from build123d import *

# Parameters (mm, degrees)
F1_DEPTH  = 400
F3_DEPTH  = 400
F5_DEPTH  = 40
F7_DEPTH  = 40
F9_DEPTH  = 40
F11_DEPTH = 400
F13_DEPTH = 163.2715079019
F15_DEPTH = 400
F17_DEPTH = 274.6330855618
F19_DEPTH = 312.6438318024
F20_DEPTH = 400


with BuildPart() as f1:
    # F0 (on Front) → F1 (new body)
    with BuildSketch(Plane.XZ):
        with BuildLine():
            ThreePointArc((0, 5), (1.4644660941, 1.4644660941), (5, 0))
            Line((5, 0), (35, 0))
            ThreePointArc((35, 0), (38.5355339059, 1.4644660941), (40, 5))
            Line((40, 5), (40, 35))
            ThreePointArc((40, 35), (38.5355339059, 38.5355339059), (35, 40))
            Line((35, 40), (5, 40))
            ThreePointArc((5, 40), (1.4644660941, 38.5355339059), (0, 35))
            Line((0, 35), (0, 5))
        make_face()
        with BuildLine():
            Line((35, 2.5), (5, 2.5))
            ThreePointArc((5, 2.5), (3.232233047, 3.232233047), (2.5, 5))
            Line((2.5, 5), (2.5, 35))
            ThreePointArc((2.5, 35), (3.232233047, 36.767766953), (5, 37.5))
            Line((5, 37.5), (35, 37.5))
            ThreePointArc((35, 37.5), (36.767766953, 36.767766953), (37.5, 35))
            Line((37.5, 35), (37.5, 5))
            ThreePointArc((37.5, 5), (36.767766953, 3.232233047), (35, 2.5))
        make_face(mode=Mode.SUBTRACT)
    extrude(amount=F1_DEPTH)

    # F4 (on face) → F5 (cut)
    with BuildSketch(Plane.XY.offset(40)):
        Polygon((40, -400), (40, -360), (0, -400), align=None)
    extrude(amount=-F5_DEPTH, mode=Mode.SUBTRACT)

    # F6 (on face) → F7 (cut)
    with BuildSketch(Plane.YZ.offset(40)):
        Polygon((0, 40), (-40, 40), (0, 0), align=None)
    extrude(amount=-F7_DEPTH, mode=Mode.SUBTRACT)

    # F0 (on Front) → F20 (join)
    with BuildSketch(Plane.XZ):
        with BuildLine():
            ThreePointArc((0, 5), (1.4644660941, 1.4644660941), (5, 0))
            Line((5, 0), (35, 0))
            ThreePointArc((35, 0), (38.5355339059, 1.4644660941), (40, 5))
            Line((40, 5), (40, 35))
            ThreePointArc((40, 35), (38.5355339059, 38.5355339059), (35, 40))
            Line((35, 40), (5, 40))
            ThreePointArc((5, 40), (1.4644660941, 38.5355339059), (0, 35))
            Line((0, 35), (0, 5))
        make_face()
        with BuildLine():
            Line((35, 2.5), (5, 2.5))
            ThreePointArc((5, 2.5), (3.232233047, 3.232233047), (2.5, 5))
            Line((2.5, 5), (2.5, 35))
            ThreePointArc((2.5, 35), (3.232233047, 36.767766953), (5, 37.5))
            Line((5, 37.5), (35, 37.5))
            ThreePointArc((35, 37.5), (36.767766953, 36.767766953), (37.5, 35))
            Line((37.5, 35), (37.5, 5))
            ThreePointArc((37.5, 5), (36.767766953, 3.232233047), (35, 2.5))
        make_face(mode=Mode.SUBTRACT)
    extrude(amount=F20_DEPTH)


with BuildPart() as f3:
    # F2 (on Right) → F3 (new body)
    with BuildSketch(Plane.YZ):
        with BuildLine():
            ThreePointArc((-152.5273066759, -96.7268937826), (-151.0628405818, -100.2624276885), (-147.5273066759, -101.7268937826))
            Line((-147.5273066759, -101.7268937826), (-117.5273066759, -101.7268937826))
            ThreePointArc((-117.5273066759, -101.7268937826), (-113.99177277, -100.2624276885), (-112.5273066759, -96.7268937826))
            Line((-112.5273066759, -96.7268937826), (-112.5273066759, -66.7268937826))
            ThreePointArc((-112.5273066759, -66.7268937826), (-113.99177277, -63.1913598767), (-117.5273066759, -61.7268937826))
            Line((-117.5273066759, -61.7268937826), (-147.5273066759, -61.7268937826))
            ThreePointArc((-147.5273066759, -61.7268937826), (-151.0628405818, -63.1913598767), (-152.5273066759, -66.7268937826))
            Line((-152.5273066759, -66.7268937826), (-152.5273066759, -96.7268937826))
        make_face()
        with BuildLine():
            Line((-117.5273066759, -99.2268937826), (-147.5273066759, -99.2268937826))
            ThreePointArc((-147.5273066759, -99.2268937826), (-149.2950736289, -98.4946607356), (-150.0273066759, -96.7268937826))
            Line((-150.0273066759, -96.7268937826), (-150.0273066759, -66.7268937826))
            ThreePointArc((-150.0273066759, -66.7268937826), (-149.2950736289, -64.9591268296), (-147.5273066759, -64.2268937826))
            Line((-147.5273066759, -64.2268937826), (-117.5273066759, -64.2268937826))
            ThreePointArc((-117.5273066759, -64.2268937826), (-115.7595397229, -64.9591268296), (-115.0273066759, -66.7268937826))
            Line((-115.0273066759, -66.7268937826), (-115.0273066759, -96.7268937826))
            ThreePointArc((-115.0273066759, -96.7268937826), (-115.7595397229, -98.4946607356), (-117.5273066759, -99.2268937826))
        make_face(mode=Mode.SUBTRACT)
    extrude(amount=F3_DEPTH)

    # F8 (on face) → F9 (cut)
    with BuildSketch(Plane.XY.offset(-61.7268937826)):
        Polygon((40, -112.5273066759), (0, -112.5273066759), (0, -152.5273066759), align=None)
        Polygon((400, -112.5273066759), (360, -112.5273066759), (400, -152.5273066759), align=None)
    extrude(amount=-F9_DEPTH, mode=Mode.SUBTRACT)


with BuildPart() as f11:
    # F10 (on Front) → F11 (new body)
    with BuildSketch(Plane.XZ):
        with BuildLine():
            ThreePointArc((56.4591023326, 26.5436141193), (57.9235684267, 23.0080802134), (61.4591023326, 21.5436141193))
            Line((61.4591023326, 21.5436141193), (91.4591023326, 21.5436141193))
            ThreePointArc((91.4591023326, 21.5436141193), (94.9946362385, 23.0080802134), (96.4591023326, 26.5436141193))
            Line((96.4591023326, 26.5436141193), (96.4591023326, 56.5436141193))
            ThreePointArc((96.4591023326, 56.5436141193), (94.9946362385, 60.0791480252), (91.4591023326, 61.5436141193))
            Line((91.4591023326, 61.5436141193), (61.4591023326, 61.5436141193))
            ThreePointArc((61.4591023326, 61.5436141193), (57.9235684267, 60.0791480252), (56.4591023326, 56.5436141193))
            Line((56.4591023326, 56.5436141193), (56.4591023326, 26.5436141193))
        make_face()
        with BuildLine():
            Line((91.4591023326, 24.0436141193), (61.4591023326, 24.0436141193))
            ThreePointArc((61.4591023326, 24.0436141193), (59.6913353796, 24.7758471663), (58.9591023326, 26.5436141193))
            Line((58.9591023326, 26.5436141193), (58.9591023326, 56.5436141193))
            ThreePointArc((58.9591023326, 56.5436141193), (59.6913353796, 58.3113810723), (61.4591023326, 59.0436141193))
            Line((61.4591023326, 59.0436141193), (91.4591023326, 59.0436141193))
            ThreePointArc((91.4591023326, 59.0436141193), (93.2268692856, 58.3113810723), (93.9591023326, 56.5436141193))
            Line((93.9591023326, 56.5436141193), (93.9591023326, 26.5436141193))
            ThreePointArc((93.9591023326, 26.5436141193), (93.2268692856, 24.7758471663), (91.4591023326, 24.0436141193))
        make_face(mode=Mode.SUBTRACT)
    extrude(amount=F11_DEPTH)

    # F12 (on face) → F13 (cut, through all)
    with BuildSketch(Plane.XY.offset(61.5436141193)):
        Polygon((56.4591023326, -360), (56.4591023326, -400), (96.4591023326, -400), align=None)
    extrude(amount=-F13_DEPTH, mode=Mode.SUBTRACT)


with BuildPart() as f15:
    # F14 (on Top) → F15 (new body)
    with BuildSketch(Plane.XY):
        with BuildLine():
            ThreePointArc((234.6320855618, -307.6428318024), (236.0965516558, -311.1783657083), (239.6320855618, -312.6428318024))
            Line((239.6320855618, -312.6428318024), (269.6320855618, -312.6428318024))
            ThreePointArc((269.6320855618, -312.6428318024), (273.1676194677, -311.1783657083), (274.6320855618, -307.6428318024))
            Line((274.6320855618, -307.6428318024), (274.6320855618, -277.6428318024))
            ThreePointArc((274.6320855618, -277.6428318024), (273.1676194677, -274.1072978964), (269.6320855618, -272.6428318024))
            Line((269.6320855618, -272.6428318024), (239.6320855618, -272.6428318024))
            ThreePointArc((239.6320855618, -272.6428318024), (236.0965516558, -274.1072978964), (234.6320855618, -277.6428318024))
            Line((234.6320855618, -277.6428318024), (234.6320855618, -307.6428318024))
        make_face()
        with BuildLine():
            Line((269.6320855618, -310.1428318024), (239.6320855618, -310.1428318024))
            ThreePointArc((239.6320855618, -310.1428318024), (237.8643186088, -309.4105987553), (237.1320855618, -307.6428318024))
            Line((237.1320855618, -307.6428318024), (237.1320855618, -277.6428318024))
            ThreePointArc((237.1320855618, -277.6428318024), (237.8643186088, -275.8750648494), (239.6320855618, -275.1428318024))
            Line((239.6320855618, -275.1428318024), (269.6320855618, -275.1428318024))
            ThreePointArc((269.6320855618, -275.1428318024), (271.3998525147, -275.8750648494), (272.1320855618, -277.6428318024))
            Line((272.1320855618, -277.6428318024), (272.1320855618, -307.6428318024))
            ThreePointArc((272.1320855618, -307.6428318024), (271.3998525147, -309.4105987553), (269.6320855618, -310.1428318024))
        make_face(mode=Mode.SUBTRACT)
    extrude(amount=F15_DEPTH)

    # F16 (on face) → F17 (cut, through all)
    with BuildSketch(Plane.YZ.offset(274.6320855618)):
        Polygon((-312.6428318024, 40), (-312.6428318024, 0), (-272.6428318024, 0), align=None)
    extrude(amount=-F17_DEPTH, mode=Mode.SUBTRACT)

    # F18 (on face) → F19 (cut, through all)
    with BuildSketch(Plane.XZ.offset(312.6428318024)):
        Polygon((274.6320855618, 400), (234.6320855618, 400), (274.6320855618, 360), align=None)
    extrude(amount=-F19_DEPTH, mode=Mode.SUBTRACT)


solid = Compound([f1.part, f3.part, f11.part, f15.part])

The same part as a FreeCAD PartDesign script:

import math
import FreeCAD as App
import Part
import Sketcher

V = App.Vector

doc = App.newDocument("Part")
params = doc.addObject("Spreadsheet::Sheet", "Params")
for row, (alias, value) in enumerate([
    ("sketch1_radius", "5 mm"),
    ("sketch1_radius2", "2.5 mm"),
    ("sketch1_width", "30 mm"),
    ("pad1_length", "400 mm"),
    ("sketch2_width", "40 mm"),
    ("pocket1_length", "40 mm"),
    ("sketch3_width", "40 mm"),
    ("pocket2_length", "40 mm"),
    ("sketch4_radius", "5 mm"),
    ("sketch4_radius2", "2.5 mm"),
    ("sketch4_width", "30 mm"),
    ("pad2_length", "400 mm"),
    ("sketch5_radius", "5 mm"),
    ("sketch5_radius2", "2.5 mm"),
    ("sketch5_width", "30 mm"),
    ("pad3_length", "400 mm"),
    ("sketch6_width", "40 mm"),
    ("pocket3_length", "40 mm"),
    ("sketch7_radius", "5 mm"),
    ("sketch7_radius2", "2.5 mm"),
    ("sketch7_width", "30 mm"),
    ("pad4_length", "400 mm"),
    ("sketch8_width", "40 mm"),
    ("sketch9_radius", "5 mm"),
    ("sketch9_radius2", "2.5 mm"),
    ("sketch9_width", "30 mm"),
    ("pad5_length", "400 mm"),
    ("sketch10_width", "40 mm"),
    ("sketch11_width", "40 mm"),
], start=1):
    params.set(f"A{row}", alias)
    params.set(f"B{row}", "=" + value)
    params.setAlias(f"B{row}", alias)

body = doc.addObject("PartDesign::Body", "Body")

sketch1 = body.newObject("Sketcher::SketchObject", "Sketch")
sketch1.AttachmentSupport = (doc.getObject("XZ_Plane"), [""])
sketch1.MapMode = "FlatFace"
sketch1.addGeometry(Part.ArcOfCircle(Part.Circle(V(5, 5, 0), V(0, 0, 1), 5), math.radians(180), math.radians(270)), False)
sketch1.addGeometry(Part.LineSegment(V(5, 0, 0), V(35, 0, 0)), False)
sketch1.addGeometry(Part.ArcOfCircle(Part.Circle(V(35, 5, 0), V(0, 0, 1), 5), math.radians(-90), math.radians(0)), False)
sketch1.addGeometry(Part.LineSegment(V(40, 5, 0), V(40, 35, 0)), False)
sketch1.addGeometry(Part.ArcOfCircle(Part.Circle(V(35, 35, 0), V(0, 0, 1), 5), math.radians(0), math.radians(90)), False)
sketch1.addGeometry(Part.LineSegment(V(35, 40, 0), V(5, 40, 0)), False)
sketch1.addGeometry(Part.ArcOfCircle(Part.Circle(V(5, 35, 0), V(0, 0, 1), 5), math.radians(90), math.radians(180)), False)
sketch1.addGeometry(Part.LineSegment(V(0, 35, 0), V(0, 5, 0)), False)
sketch1.addGeometry(Part.ArcOfCircle(Part.Circle(V(35, 5, 0), V(0, 0, 1), 2.5), math.radians(-90), math.radians(0)), False)
sketch1.addGeometry(Part.LineSegment(V(35, 2.5, 0), V(5, 2.5, 0)), False)
sketch1.addGeometry(Part.ArcOfCircle(Part.Circle(V(5, 5, 0), V(0, 0, 1), 2.5), math.radians(180), math.radians(270)), False)
sketch1.addGeometry(Part.LineSegment(V(2.5, 5, 0), V(2.5, 35, 0)), False)
sketch1.addGeometry(Part.ArcOfCircle(Part.Circle(V(5, 35, 0), V(0, 0, 1), 2.5), math.radians(90), math.radians(180)), False)
sketch1.addGeometry(Part.LineSegment(V(5, 37.5, 0), V(35, 37.5, 0)), False)
sketch1.addGeometry(Part.ArcOfCircle(Part.Circle(V(35, 35, 0), V(0, 0, 1), 2.5), math.radians(0), math.radians(90)), False)
sketch1.addGeometry(Part.LineSegment(V(37.5, 35, 0), V(37.5, 5, 0)), False)
sketch1.addConstraint(Sketcher.Constraint("Tangent", 0, 2, 1, 1))
sketch1.addConstraint(Sketcher.Constraint("Tangent", 1, 2, 2, 1))
sketch1.addConstraint(Sketcher.Constraint("Tangent", 2, 2, 3, 1))
sketch1.addConstraint(Sketcher.Constraint("Tangent", 3, 2, 4, 1))
sketch1.addConstraint(Sketcher.Constraint("Tangent", 4, 2, 5, 1))
sketch1.addConstraint(Sketcher.Constraint("Tangent", 5, 2, 6, 1))
sketch1.addConstraint(Sketcher.Constraint("Tangent", 6, 2, 7, 1))
sketch1.addConstraint(Sketcher.Constraint("Tangent", 7, 2, 0, 1))
sketch1.addConstraint(Sketcher.Constraint("Tangent", 8, 1, 9, 1))
sketch1.addConstraint(Sketcher.Constraint("Tangent", 9, 2, 10, 2))
sketch1.addConstraint(Sketcher.Constraint("Tangent", 10, 1, 11, 1))
sketch1.addConstraint(Sketcher.Constraint("Tangent", 11, 2, 12, 2))
sketch1.addConstraint(Sketcher.Constraint("Tangent", 12, 1, 13, 1))
sketch1.addConstraint(Sketcher.Constraint("Tangent", 13, 2, 14, 2))
sketch1.addConstraint(Sketcher.Constraint("Tangent", 14, 1, 15, 1))
sketch1.addConstraint(Sketcher.Constraint("Tangent", 15, 2, 8, 2))
sketch1.addConstraint(Sketcher.Constraint("Horizontal", 1))
sketch1.addConstraint(Sketcher.Constraint("Vertical", 3))
sketch1.addConstraint(Sketcher.Constraint("Horizontal", 5))
sketch1.addConstraint(Sketcher.Constraint("Vertical", 7))
sketch1.addConstraint(Sketcher.Constraint("Horizontal", 9))
sketch1.addConstraint(Sketcher.Constraint("Vertical", 11))
sketch1.addConstraint(Sketcher.Constraint("Horizontal", 13))
sketch1.addConstraint(Sketcher.Constraint("Vertical", 15))
sketch1.addConstraint(Sketcher.Constraint("Coincident", 8, 3, 2, 3))
sketch1.addConstraint(Sketcher.Constraint("Coincident", 10, 3, 0, 3))
sketch1.addConstraint(Sketcher.Constraint("Coincident", 12, 3, 6, 3))
sketch1.addConstraint(Sketcher.Constraint("Equal", 0, 2))
sketch1.addConstraint(Sketcher.Constraint("Equal", 2, 4))
sketch1.addConstraint(Sketcher.Constraint("Equal", 4, 6))
sketch1.addConstraint(Sketcher.Constraint("Equal", 12, 14))
sketch1.addConstraint(Sketcher.Constraint("PointOnObject", 0, 2, -1))
sketch1.addConstraint(Sketcher.Constraint("PointOnObject", 6, 2, -2))
sketch1.addConstraint(Sketcher.Constraint("Equal", 13, 3))
sketch1.addConstraint(Sketcher.Constraint("Radius", 0, 5.0))
sketch1.addConstraint(Sketcher.Constraint("Radius", 8, 2.5))
sketch1.addConstraint(Sketcher.Constraint("DistanceX", 1, 1, 1, 2, 30.0))
sketch1.setExpression("Constraints[34]", "Params.sketch1_radius")
sketch1.setExpression("Constraints[35]", "Params.sketch1_radius2")
sketch1.setExpression("Constraints[36]", "Params.sketch1_width")
pad1 = body.newObject("PartDesign::Pad", "Pad")
pad1.Profile = sketch1
pad1.setExpression("Length", "Params.pad1_length")

sketch2 = body.newObject("Sketcher::SketchObject", "Sketch001")
sketch2.AttachmentSupport = (doc.getObject("XY_Plane"), [""])
sketch2.MapMode = "FlatFace"
sketch2.AttachmentOffset = App.Placement(V(0, 0, 40), App.Rotation())
sketch2.addGeometry(Part.LineSegment(V(40, -400, 0), V(40, -360, 0)), False)
sketch2.addGeometry(Part.LineSegment(V(40, -360, 0), V(0, -400, 0)), False)
sketch2.addGeometry(Part.LineSegment(V(0, -400, 0), V(40, -400, 0)), False)
sketch2.addConstraint(Sketcher.Constraint("Coincident", 0, 2, 1, 1))
sketch2.addConstraint(Sketcher.Constraint("Coincident", 1, 2, 2, 1))
sketch2.addConstraint(Sketcher.Constraint("Coincident", 2, 2, 0, 1))
sketch2.addConstraint(Sketcher.Constraint("Vertical", 0))
sketch2.addConstraint(Sketcher.Constraint("Horizontal", 2))
sketch2.addConstraint(Sketcher.Constraint("PointOnObject", 1, 2, -2))
sketch2.addConstraint(Sketcher.Constraint("Equal", 2, 0))
sketch2.addConstraint(Sketcher.Constraint("DistanceX", 2, 1, 2, 2, 40.0))
sketch2.addConstraint(Sketcher.Constraint("DistanceY", 0, 2, -1, 1, 360.0))
sketch2.setExpression("Constraints[7]", "Params.sketch2_width")
pocket1 = body.newObject("PartDesign::Pocket", "Pocket")
pocket1.Profile = sketch2
pocket1.setExpression("Length", "Params.pocket1_length")

sketch3 = body.newObject("Sketcher::SketchObject", "Sketch002")
sketch3.AttachmentSupport = (doc.getObject("YZ_Plane"), [""])
sketch3.MapMode = "FlatFace"
sketch3.AttachmentOffset = App.Placement(V(0, 0, 40), App.Rotation())
sketch3.addGeometry(Part.LineSegment(V(0, 40, 0), V(-40, 40, 0)), False)
sketch3.addGeometry(Part.LineSegment(V(-40, 40, 0), V(0, 0, 0)), False)
sketch3.addGeometry(Part.LineSegment(V(0, 0, 0), V(0, 40, 0)), False)
sketch3.addConstraint(Sketcher.Constraint("Coincident", 0, 2, 1, 1))
sketch3.addConstraint(Sketcher.Constraint("Coincident", 1, 2, 2, 1))
sketch3.addConstraint(Sketcher.Constraint("Coincident", 2, 2, 0, 1))
sketch3.addConstraint(Sketcher.Constraint("Horizontal", 0))
sketch3.addConstraint(Sketcher.Constraint("Vertical", 2))
sketch3.addConstraint(Sketcher.Constraint("Coincident", 1, 2, -1, 1))
sketch3.addConstraint(Sketcher.Constraint("Equal", 0, 2))
sketch3.addConstraint(Sketcher.Constraint("DistanceX", 0, 2, 0, 1, 40.0))
sketch3.setExpression("Constraints[7]", "Params.sketch3_width")
pocket2 = body.newObject("PartDesign::Pocket", "Pocket001")
pocket2.Profile = sketch3
pocket2.setExpression("Length", "Params.pocket2_length")

sketch4 = body.newObject("Sketcher::SketchObject", "Sketch003")
sketch4.AttachmentSupport = (doc.getObject("XZ_Plane"), [""])
sketch4.MapMode = "FlatFace"
sketch4.addGeometry(Part.ArcOfCircle(Part.Circle(V(5, 5, 0), V(0, 0, 1), 5), math.radians(180), math.radians(270)), False)
sketch4.addGeometry(Part.LineSegment(V(5, 0, 0), V(35, 0, 0)), False)
sketch4.addGeometry(Part.ArcOfCircle(Part.Circle(V(35, 5, 0), V(0, 0, 1), 5), math.radians(-90), math.radians(0)), False)
sketch4.addGeometry(Part.LineSegment(V(40, 5, 0), V(40, 35, 0)), False)
sketch4.addGeometry(Part.ArcOfCircle(Part.Circle(V(35, 35, 0), V(0, 0, 1), 5), math.radians(0), math.radians(90)), False)
sketch4.addGeometry(Part.LineSegment(V(35, 40, 0), V(5, 40, 0)), False)
sketch4.addGeometry(Part.ArcOfCircle(Part.Circle(V(5, 35, 0), V(0, 0, 1), 5), math.radians(90), math.radians(180)), False)
sketch4.addGeometry(Part.LineSegment(V(0, 35, 0), V(0, 5, 0)), False)
sketch4.addGeometry(Part.ArcOfCircle(Part.Circle(V(35, 5, 0), V(0, 0, 1), 2.5), math.radians(-90), math.radians(0)), False)
sketch4.addGeometry(Part.LineSegment(V(35, 2.5, 0), V(5, 2.5, 0)), False)
sketch4.addGeometry(Part.ArcOfCircle(Part.Circle(V(5, 5, 0), V(0, 0, 1), 2.5), math.radians(180), math.radians(270)), False)
sketch4.addGeometry(Part.LineSegment(V(2.5, 5, 0), V(2.5, 35, 0)), False)
sketch4.addGeometry(Part.ArcOfCircle(Part.Circle(V(5, 35, 0), V(0, 0, 1), 2.5), math.radians(90), math.radians(180)), False)
sketch4.addGeometry(Part.LineSegment(V(5, 37.5, 0), V(35, 37.5, 0)), False)
sketch4.addGeometry(Part.ArcOfCircle(Part.Circle(V(35, 35, 0), V(0, 0, 1), 2.5), math.radians(0), math.radians(90)), False)
sketch4.addGeometry(Part.LineSegment(V(37.5, 35, 0), V(37.5, 5, 0)), False)
sketch4.addConstraint(Sketcher.Constraint("Tangent", 0, 2, 1, 1))
sketch4.addConstraint(Sketcher.Constraint("Tangent", 1, 2, 2, 1))
sketch4.addConstraint(Sketcher.Constraint("Tangent", 2, 2, 3, 1))
sketch4.addConstraint(Sketcher.Constraint("Tangent", 3, 2, 4, 1))
sketch4.addConstraint(Sketcher.Constraint("Tangent", 4, 2, 5, 1))
sketch4.addConstraint(Sketcher.Constraint("Tangent", 5, 2, 6, 1))
sketch4.addConstraint(Sketcher.Constraint("Tangent", 6, 2, 7, 1))
sketch4.addConstraint(Sketcher.Constraint("Tangent", 7, 2, 0, 1))
sketch4.addConstraint(Sketcher.Constraint("Tangent", 8, 1, 9, 1))
sketch4.addConstraint(Sketcher.Constraint("Tangent", 9, 2, 10, 2))
sketch4.addConstraint(Sketcher.Constraint("Tangent", 10, 1, 11, 1))
sketch4.addConstraint(Sketcher.Constraint("Tangent", 11, 2, 12, 2))
sketch4.addConstraint(Sketcher.Constraint("Tangent", 12, 1, 13, 1))
sketch4.addConstraint(Sketcher.Constraint("Tangent", 13, 2, 14, 2))
sketch4.addConstraint(Sketcher.Constraint("Tangent", 14, 1, 15, 1))
sketch4.addConstraint(Sketcher.Constraint("Tangent", 15, 2, 8, 2))
sketch4.addConstraint(Sketcher.Constraint("Horizontal", 1))
sketch4.addConstraint(Sketcher.Constraint("Vertical", 3))
sketch4.addConstraint(Sketcher.Constraint("Horizontal", 5))
sketch4.addConstraint(Sketcher.Constraint("Vertical", 7))
sketch4.addConstraint(Sketcher.Constraint("Horizontal", 9))
sketch4.addConstraint(Sketcher.Constraint("Vertical", 11))
sketch4.addConstraint(Sketcher.Constraint("Horizontal", 13))
sketch4.addConstraint(Sketcher.Constraint("Vertical", 15))
sketch4.addConstraint(Sketcher.Constraint("Coincident", 8, 3, 2, 3))
sketch4.addConstraint(Sketcher.Constraint("Coincident", 10, 3, 0, 3))
sketch4.addConstraint(Sketcher.Constraint("Coincident", 12, 3, 6, 3))
sketch4.addConstraint(Sketcher.Constraint("Equal", 0, 2))
sketch4.addConstraint(Sketcher.Constraint("Equal", 2, 4))
sketch4.addConstraint(Sketcher.Constraint("Equal", 4, 6))
sketch4.addConstraint(Sketcher.Constraint("Equal", 12, 14))
sketch4.addConstraint(Sketcher.Constraint("PointOnObject", 0, 2, -1))
sketch4.addConstraint(Sketcher.Constraint("PointOnObject", 6, 2, -2))
sketch4.addConstraint(Sketcher.Constraint("Equal", 13, 3))
sketch4.addConstraint(Sketcher.Constraint("Radius", 0, 5.0))
sketch4.addConstraint(Sketcher.Constraint("Radius", 8, 2.5))
sketch4.addConstraint(Sketcher.Constraint("DistanceX", 1, 1, 1, 2, 30.0))
sketch4.setExpression("Constraints[34]", "Params.sketch4_radius")
sketch4.setExpression("Constraints[35]", "Params.sketch4_radius2")
sketch4.setExpression("Constraints[36]", "Params.sketch4_width")
pad2 = body.newObject("PartDesign::Pad", "Pad001")
pad2.Profile = sketch4
pad2.setExpression("Length", "Params.pad2_length")
body2 = doc.addObject("PartDesign::Body", "Body001")

sketch5 = body2.newObject("Sketcher::SketchObject", "Sketch004")
sketch5.AttachmentSupport = (doc.getObject("YZ_Plane001"), [""])
sketch5.MapMode = "FlatFace"
sketch5.addGeometry(Part.ArcOfCircle(Part.Circle(V(-147.5, -96.7, 0), V(0, 0, 1), 5), math.radians(-180), math.radians(-90)), False)
sketch5.addGeometry(Part.LineSegment(V(-147.5, -101.7, 0), V(-117.5, -101.7, 0)), False)
sketch5.addGeometry(Part.ArcOfCircle(Part.Circle(V(-117.5, -96.7, 0), V(0, 0, 1), 5), math.radians(-90), math.radians(0)), False)
sketch5.addGeometry(Part.LineSegment(V(-112.5, -96.7, 0), V(-112.5, -66.7, 0)), False)
sketch5.addGeometry(Part.ArcOfCircle(Part.Circle(V(-117.5, -66.7, 0), V(0, 0, 1), 5), math.radians(0), math.radians(90)), False)
sketch5.addGeometry(Part.LineSegment(V(-117.5, -61.7, 0), V(-147.5, -61.7, 0)), False)
sketch5.addGeometry(Part.ArcOfCircle(Part.Circle(V(-147.5, -66.7, 0), V(0, 0, 1), 5), math.radians(90), math.radians(180)), False)
sketch5.addGeometry(Part.LineSegment(V(-152.5, -66.7, 0), V(-152.5, -96.7, 0)), False)
sketch5.addGeometry(Part.ArcOfCircle(Part.Circle(V(-117.5, -96.7, 0), V(0, 0, 1), 2.5), math.radians(-90), math.radians(0)), False)
sketch5.addGeometry(Part.LineSegment(V(-117.5, -99.2, 0), V(-147.5, -99.2, 0)), False)
sketch5.addGeometry(Part.ArcOfCircle(Part.Circle(V(-147.5, -96.7, 0), V(0, 0, 1), 2.5), math.radians(180), math.radians(270)), False)
sketch5.addGeometry(Part.LineSegment(V(-150, -96.7, 0), V(-150, -66.7, 0)), False)
sketch5.addGeometry(Part.ArcOfCircle(Part.Circle(V(-147.5, -66.7, 0), V(0, 0, 1), 2.5), math.radians(90), math.radians(180)), False)
sketch5.addGeometry(Part.LineSegment(V(-147.5, -64.2, 0), V(-117.5, -64.2, 0)), False)
sketch5.addGeometry(Part.ArcOfCircle(Part.Circle(V(-117.5, -66.7, 0), V(0, 0, 1), 2.5), math.radians(0), math.radians(90)), False)
sketch5.addGeometry(Part.LineSegment(V(-115, -66.7, 0), V(-115, -96.7, 0)), False)
sketch5.addConstraint(Sketcher.Constraint("Tangent", 0, 2, 1, 1))
sketch5.addConstraint(Sketcher.Constraint("Tangent", 1, 2, 2, 1))
sketch5.addConstraint(Sketcher.Constraint("Tangent", 2, 2, 3, 1))
sketch5.addConstraint(Sketcher.Constraint("Tangent", 3, 2, 4, 1))
sketch5.addConstraint(Sketcher.Constraint("Tangent", 4, 2, 5, 1))
sketch5.addConstraint(Sketcher.Constraint("Tangent", 5, 2, 6, 1))
sketch5.addConstraint(Sketcher.Constraint("Tangent", 6, 2, 7, 1))
sketch5.addConstraint(Sketcher.Constraint("Tangent", 7, 2, 0, 1))
sketch5.addConstraint(Sketcher.Constraint("Tangent", 8, 1, 9, 1))
sketch5.addConstraint(Sketcher.Constraint("Tangent", 9, 2, 10, 2))
sketch5.addConstraint(Sketcher.Constraint("Tangent", 10, 1, 11, 1))
sketch5.addConstraint(Sketcher.Constraint("Tangent", 11, 2, 12, 2))
sketch5.addConstraint(Sketcher.Constraint("Tangent", 12, 1, 13, 1))
sketch5.addConstraint(Sketcher.Constraint("Tangent", 13, 2, 14, 2))
sketch5.addConstraint(Sketcher.Constraint("Tangent", 14, 1, 15, 1))
sketch5.addConstraint(Sketcher.Constraint("Tangent", 15, 2, 8, 2))
sketch5.addConstraint(Sketcher.Constraint("Horizontal", 1))
sketch5.addConstraint(Sketcher.Constraint("Vertical", 3))
sketch5.addConstraint(Sketcher.Constraint("Horizontal", 5))
sketch5.addConstraint(Sketcher.Constraint("Vertical", 7))
sketch5.addConstraint(Sketcher.Constraint("Horizontal", 9))
sketch5.addConstraint(Sketcher.Constraint("Vertical", 11))
sketch5.addConstraint(Sketcher.Constraint("Horizontal", 13))
sketch5.addConstraint(Sketcher.Constraint("Vertical", 15))
sketch5.addConstraint(Sketcher.Constraint("Coincident", 8, 3, 2, 3))
sketch5.addConstraint(Sketcher.Constraint("Coincident", 10, 3, 0, 3))
sketch5.addConstraint(Sketcher.Constraint("Coincident", 12, 3, 6, 3))
sketch5.addConstraint(Sketcher.Constraint("Equal", 0, 2))
sketch5.addConstraint(Sketcher.Constraint("Equal", 2, 4))
sketch5.addConstraint(Sketcher.Constraint("Equal", 4, 6))
sketch5.addConstraint(Sketcher.Constraint("Equal", 12, 14))
sketch5.addConstraint(Sketcher.Constraint("Equal", 13, 3))
sketch5.addConstraint(Sketcher.Constraint("Radius", 0, 5.0))
sketch5.addConstraint(Sketcher.Constraint("Radius", 8, 2.5))
sketch5.addConstraint(Sketcher.Constraint("DistanceX", 1, 1, 1, 2, 30.0))
sketch5.addConstraint(Sketcher.Constraint("DistanceX", 0, 3, -1, 1, 147.527307))
sketch5.addConstraint(Sketcher.Constraint("DistanceY", 0, 3, -1, 1, 96.726894))
sketch5.setExpression("Constraints[32]", "Params.sketch5_radius")
sketch5.setExpression("Constraints[33]", "Params.sketch5_radius2")
sketch5.setExpression("Constraints[34]", "Params.sketch5_width")
pad3 = body2.newObject("PartDesign::Pad", "Pad002")
pad3.Profile = sketch5
pad3.setExpression("Length", "Params.pad3_length")

sketch6 = body2.newObject("Sketcher::SketchObject", "Sketch005")
sketch6.AttachmentSupport = (doc.getObject("XY_Plane001"), [""])
sketch6.MapMode = "FlatFace"
sketch6.AttachmentOffset = App.Placement(V(0, 0, -61.726894), App.Rotation())
sketch6.addGeometry(Part.LineSegment(V(40, -113, 0), V(0, -113, 0)), False)
sketch6.addGeometry(Part.LineSegment(V(0, -113, 0), V(0, -153, 0)), False)
sketch6.addGeometry(Part.LineSegment(V(0, -153, 0), V(40, -113, 0)), False)
sketch6.addGeometry(Part.LineSegment(V(400, -113, 0), V(360, -113, 0)), False)
sketch6.addGeometry(Part.LineSegment(V(360, -113, 0), V(400, -153, 0)), False)
sketch6.addGeometry(Part.LineSegment(V(400, -153, 0), V(400, -113, 0)), False)
sketch6.addConstraint(Sketcher.Constraint("Coincident", 0, 2, 1, 1))
sketch6.addConstraint(Sketcher.Constraint("Coincident", 1, 2, 2, 1))
sketch6.addConstraint(Sketcher.Constraint("Coincident", 2, 2, 0, 1))
sketch6.addConstraint(Sketcher.Constraint("Coincident", 3, 2, 4, 1))
sketch6.addConstraint(Sketcher.Constraint("Coincident", 4, 2, 5, 1))
sketch6.addConstraint(Sketcher.Constraint("Coincident", 5, 2, 3, 1))
sketch6.addConstraint(Sketcher.Constraint("Horizontal", 0))
sketch6.addConstraint(Sketcher.Constraint("Vertical", 1))
sketch6.addConstraint(Sketcher.Constraint("Horizontal", 3))
sketch6.addConstraint(Sketcher.Constraint("Vertical", 5))
sketch6.addConstraint(Sketcher.Constraint("PointOnObject", 0, 2, -2))
sketch6.addConstraint(Sketcher.Constraint("Perpendicular", 2, 4))
sketch6.addConstraint(Sketcher.Constraint("Horizontal", 2, 2, 3, 2))
sketch6.addConstraint(Sketcher.Constraint("Horizontal", 1, 2, 4, 2))
sketch6.addConstraint(Sketcher.Constraint("Equal", 0, 3))
sketch6.addConstraint(Sketcher.Constraint("DistanceX", 0, 2, 0, 1, 40.0))
sketch6.addConstraint(Sketcher.Constraint("DistanceX", -1, 1, 3, 2, 360.0))
sketch6.addConstraint(Sketcher.Constraint("DistanceY", 0, 2, -1, 1, 112.527307))
sketch6.setExpression("Constraints[15]", "Params.sketch6_width")
pocket3 = body2.newObject("PartDesign::Pocket", "Pocket002")
pocket3.Profile = sketch6
pocket3.setExpression("Length", "Params.pocket3_length")
body3 = doc.addObject("PartDesign::Body", "Body002")

sketch7 = body3.newObject("Sketcher::SketchObject", "Sketch006")
sketch7.AttachmentSupport = (doc.getObject("XZ_Plane002"), [""])
sketch7.MapMode = "FlatFace"
sketch7.addGeometry(Part.ArcOfCircle(Part.Circle(V(61.5, 26.5, 0), V(0, 0, 1), 5), math.radians(180), math.radians(270)), False)
sketch7.addGeometry(Part.LineSegment(V(61.5, 21.5, 0), V(91.5, 21.5, 0)), False)
sketch7.addGeometry(Part.ArcOfCircle(Part.Circle(V(91.5, 26.5, 0), V(0, 0, 1), 5), math.radians(-90), math.radians(0)), False)
sketch7.addGeometry(Part.LineSegment(V(96.5, 26.5, 0), V(96.5, 56.5, 0)), False)
sketch7.addGeometry(Part.ArcOfCircle(Part.Circle(V(91.5, 56.5, 0), V(0, 0, 1), 5), math.radians(0), math.radians(90)), False)
sketch7.addGeometry(Part.LineSegment(V(91.5, 61.5, 0), V(61.5, 61.5, 0)), False)
sketch7.addGeometry(Part.ArcOfCircle(Part.Circle(V(61.5, 56.5, 0), V(0, 0, 1), 5), math.radians(90), math.radians(180)), False)
sketch7.addGeometry(Part.LineSegment(V(56.5, 56.5, 0), V(56.5, 26.5, 0)), False)
sketch7.addGeometry(Part.ArcOfCircle(Part.Circle(V(91.5, 26.5, 0), V(0, 0, 1), 2.5), math.radians(-90), math.radians(0)), False)
sketch7.addGeometry(Part.LineSegment(V(91.5, 24, 0), V(61.5, 24, 0)), False)
sketch7.addGeometry(Part.ArcOfCircle(Part.Circle(V(61.5, 26.5, 0), V(0, 0, 1), 2.5), math.radians(180), math.radians(270)), False)
sketch7.addGeometry(Part.LineSegment(V(59, 26.5, 0), V(59, 56.5, 0)), False)
sketch7.addGeometry(Part.ArcOfCircle(Part.Circle(V(61.5, 56.5, 0), V(0, 0, 1), 2.5), math.radians(90), math.radians(180)), False)
sketch7.addGeometry(Part.LineSegment(V(61.5, 59, 0), V(91.5, 59, 0)), False)
sketch7.addGeometry(Part.ArcOfCircle(Part.Circle(V(91.5, 56.5, 0), V(0, 0, 1), 2.5), math.radians(0), math.radians(90)), False)
sketch7.addGeometry(Part.LineSegment(V(94, 56.5, 0), V(94, 26.5, 0)), False)
sketch7.addConstraint(Sketcher.Constraint("Tangent", 0, 2, 1, 1))
sketch7.addConstraint(Sketcher.Constraint("Tangent", 1, 2, 2, 1))
sketch7.addConstraint(Sketcher.Constraint("Tangent", 2, 2, 3, 1))
sketch7.addConstraint(Sketcher.Constraint("Tangent", 3, 2, 4, 1))
sketch7.addConstraint(Sketcher.Constraint("Tangent", 4, 2, 5, 1))
sketch7.addConstraint(Sketcher.Constraint("Tangent", 5, 2, 6, 1))
sketch7.addConstraint(Sketcher.Constraint("Tangent", 6, 2, 7, 1))
sketch7.addConstraint(Sketcher.Constraint("Tangent", 7, 2, 0, 1))
sketch7.addConstraint(Sketcher.Constraint("Tangent", 8, 1, 9, 1))
sketch7.addConstraint(Sketcher.Constraint("Tangent", 9, 2, 10, 2))
sketch7.addConstraint(Sketcher.Constraint("Tangent", 10, 1, 11, 1))
sketch7.addConstraint(Sketcher.Constraint("Tangent", 11, 2, 12, 2))
sketch7.addConstraint(Sketcher.Constraint("Tangent", 12, 1, 13, 1))
sketch7.addConstraint(Sketcher.Constraint("Tangent", 13, 2, 14, 2))
sketch7.addConstraint(Sketcher.Constraint("Tangent", 14, 1, 15, 1))
sketch7.addConstraint(Sketcher.Constraint("Tangent", 15, 2, 8, 2))
sketch7.addConstraint(Sketcher.Constraint("Horizontal", 1))
sketch7.addConstraint(Sketcher.Constraint("Vertical", 3))
sketch7.addConstraint(Sketcher.Constraint("Horizontal", 5))
sketch7.addConstraint(Sketcher.Constraint("Vertical", 7))
sketch7.addConstraint(Sketcher.Constraint("Horizontal", 9))
sketch7.addConstraint(Sketcher.Constraint("Vertical", 11))
sketch7.addConstraint(Sketcher.Constraint("Horizontal", 13))
sketch7.addConstraint(Sketcher.Constraint("Vertical", 15))
sketch7.addConstraint(Sketcher.Constraint("Coincident", 8, 3, 2, 3))
sketch7.addConstraint(Sketcher.Constraint("Coincident", 10, 3, 0, 3))
sketch7.addConstraint(Sketcher.Constraint("Coincident", 12, 3, 6, 3))
sketch7.addConstraint(Sketcher.Constraint("Equal", 0, 2))
sketch7.addConstraint(Sketcher.Constraint("Equal", 2, 4))
sketch7.addConstraint(Sketcher.Constraint("Equal", 4, 6))
sketch7.addConstraint(Sketcher.Constraint("Equal", 12, 14))
sketch7.addConstraint(Sketcher.Constraint("Equal", 13, 3))
sketch7.addConstraint(Sketcher.Constraint("Radius", 0, 5.0))
sketch7.addConstraint(Sketcher.Constraint("Radius", 8, 2.5))
sketch7.addConstraint(Sketcher.Constraint("DistanceX", 1, 1, 1, 2, 30.0))
sketch7.addConstraint(Sketcher.Constraint("DistanceX", -1, 1, 0, 3, 61.459102))
sketch7.addConstraint(Sketcher.Constraint("DistanceY", -1, 1, 0, 3, 26.543614))
sketch7.setExpression("Constraints[32]", "Params.sketch7_radius")
sketch7.setExpression("Constraints[33]", "Params.sketch7_radius2")
sketch7.setExpression("Constraints[34]", "Params.sketch7_width")
pad4 = body3.newObject("PartDesign::Pad", "Pad003")
pad4.Profile = sketch7
pad4.setExpression("Length", "Params.pad4_length")

sketch8 = body3.newObject("Sketcher::SketchObject", "Sketch007")
sketch8.AttachmentSupport = (doc.getObject("XY_Plane002"), [""])
sketch8.MapMode = "FlatFace"
sketch8.AttachmentOffset = App.Placement(V(0, 0, 61.543614), App.Rotation())
sketch8.addGeometry(Part.LineSegment(V(56, -360, 0), V(56, -400, 0)), False)
sketch8.addGeometry(Part.LineSegment(V(56, -400, 0), V(96, -400, 0)), False)
sketch8.addGeometry(Part.LineSegment(V(96, -400, 0), V(56, -360, 0)), False)
sketch8.addConstraint(Sketcher.Constraint("Coincident", 0, 2, 1, 1))
sketch8.addConstraint(Sketcher.Constraint("Coincident", 1, 2, 2, 1))
sketch8.addConstraint(Sketcher.Constraint("Coincident", 2, 2, 0, 1))
sketch8.addConstraint(Sketcher.Constraint("Vertical", 0))
sketch8.addConstraint(Sketcher.Constraint("Horizontal", 1))
sketch8.addConstraint(Sketcher.Constraint("Equal", 1, 0))
sketch8.addConstraint(Sketcher.Constraint("DistanceX", 1, 1, 1, 2, 40.0))
sketch8.addConstraint(Sketcher.Constraint("DistanceY", 0, 2, -1, 1, 400.0))
sketch8.addConstraint(Sketcher.Constraint("DistanceX", -1, 1, 0, 2, 56.459102))
sketch8.setExpression("Constraints[6]", "Params.sketch8_width")
pocket4 = body3.newObject("PartDesign::Pocket", "Pocket003")
pocket4.Profile = sketch8
pocket4.Type = "ThroughAll"
body4 = doc.addObject("PartDesign::Body", "Body003")

sketch9 = body4.newObject("Sketcher::SketchObject", "Sketch008")
sketch9.AttachmentSupport = (doc.getObject("XY_Plane003"), [""])
sketch9.MapMode = "FlatFace"
sketch9.addGeometry(Part.ArcOfCircle(Part.Circle(V(239.6, -307.6, 0), V(0, 0, 1), 5), math.radians(180), math.radians(270)), False)
sketch9.addGeometry(Part.LineSegment(V(239.6, -312.6, 0), V(269.6, -312.6, 0)), False)
sketch9.addGeometry(Part.ArcOfCircle(Part.Circle(V(269.6, -307.6, 0), V(0, 0, 1), 5), math.radians(-90), math.radians(0)), False)
sketch9.addGeometry(Part.LineSegment(V(274.6, -307.6, 0), V(274.6, -277.6, 0)), False)
sketch9.addGeometry(Part.ArcOfCircle(Part.Circle(V(269.6, -277.6, 0), V(0, 0, 1), 5), math.radians(0), math.radians(90)), False)
sketch9.addGeometry(Part.LineSegment(V(269.6, -272.6, 0), V(239.6, -272.6, 0)), False)
sketch9.addGeometry(Part.ArcOfCircle(Part.Circle(V(239.6, -277.6, 0), V(0, 0, 1), 5), math.radians(90), math.radians(180)), False)
sketch9.addGeometry(Part.LineSegment(V(234.6, -277.6, 0), V(234.6, -307.6, 0)), False)
sketch9.addGeometry(Part.ArcOfCircle(Part.Circle(V(269.6, -307.6, 0), V(0, 0, 1), 2.5), math.radians(-90), math.radians(0)), False)
sketch9.addGeometry(Part.LineSegment(V(269.6, -310.1, 0), V(239.6, -310.1, 0)), False)
sketch9.addGeometry(Part.ArcOfCircle(Part.Circle(V(239.6, -307.6, 0), V(0, 0, 1), 2.5), math.radians(180), math.radians(270)), False)
sketch9.addGeometry(Part.LineSegment(V(237.1, -307.6, 0), V(237.1, -277.6, 0)), False)
sketch9.addGeometry(Part.ArcOfCircle(Part.Circle(V(239.6, -277.6, 0), V(0, 0, 1), 2.5), math.radians(90), math.radians(180)), False)
sketch9.addGeometry(Part.LineSegment(V(239.6, -275.1, 0), V(269.6, -275.1, 0)), False)
sketch9.addGeometry(Part.ArcOfCircle(Part.Circle(V(269.6, -277.6, 0), V(0, 0, 1), 2.5), math.radians(0), math.radians(90)), False)
sketch9.addGeometry(Part.LineSegment(V(272.1, -277.6, 0), V(272.1, -307.6, 0)), False)
sketch9.addConstraint(Sketcher.Constraint("Tangent", 0, 2, 1, 1))
sketch9.addConstraint(Sketcher.Constraint("Tangent", 1, 2, 2, 1))
sketch9.addConstraint(Sketcher.Constraint("Tangent", 2, 2, 3, 1))
sketch9.addConstraint(Sketcher.Constraint("Tangent", 3, 2, 4, 1))
sketch9.addConstraint(Sketcher.Constraint("Tangent", 4, 2, 5, 1))
sketch9.addConstraint(Sketcher.Constraint("Tangent", 5, 2, 6, 1))
sketch9.addConstraint(Sketcher.Constraint("Tangent", 6, 2, 7, 1))
sketch9.addConstraint(Sketcher.Constraint("Tangent", 7, 2, 0, 1))
sketch9.addConstraint(Sketcher.Constraint("Tangent", 8, 1, 9, 1))
sketch9.addConstraint(Sketcher.Constraint("Tangent", 9, 2, 10, 2))
sketch9.addConstraint(Sketcher.Constraint("Tangent", 10, 1, 11, 1))
sketch9.addConstraint(Sketcher.Constraint("Tangent", 11, 2, 12, 2))
sketch9.addConstraint(Sketcher.Constraint("Tangent", 12, 1, 13, 1))
sketch9.addConstraint(Sketcher.Constraint("Tangent", 13, 2, 14, 2))
sketch9.addConstraint(Sketcher.Constraint("Tangent", 14, 1, 15, 1))
sketch9.addConstraint(Sketcher.Constraint("Tangent", 15, 2, 8, 2))
sketch9.addConstraint(Sketcher.Constraint("Horizontal", 1))
sketch9.addConstraint(Sketcher.Constraint("Vertical", 3))
sketch9.addConstraint(Sketcher.Constraint("Horizontal", 5))
sketch9.addConstraint(Sketcher.Constraint("Vertical", 7))
sketch9.addConstraint(Sketcher.Constraint("Horizontal", 9))
sketch9.addConstraint(Sketcher.Constraint("Vertical", 11))
sketch9.addConstraint(Sketcher.Constraint("Horizontal", 13))
sketch9.addConstraint(Sketcher.Constraint("Vertical", 15))
sketch9.addConstraint(Sketcher.Constraint("Coincident", 8, 3, 2, 3))
sketch9.addConstraint(Sketcher.Constraint("Coincident", 10, 3, 0, 3))
sketch9.addConstraint(Sketcher.Constraint("Coincident", 12, 3, 6, 3))
sketch9.addConstraint(Sketcher.Constraint("Equal", 0, 2))
sketch9.addConstraint(Sketcher.Constraint("Equal", 2, 4))
sketch9.addConstraint(Sketcher.Constraint("Equal", 4, 6))
sketch9.addConstraint(Sketcher.Constraint("Equal", 12, 14))
sketch9.addConstraint(Sketcher.Constraint("Equal", 13, 3))
sketch9.addConstraint(Sketcher.Constraint("Radius", 0, 5.0))
sketch9.addConstraint(Sketcher.Constraint("Radius", 8, 2.5))
sketch9.addConstraint(Sketcher.Constraint("DistanceX", 1, 1, 1, 2, 30.0))
sketch9.addConstraint(Sketcher.Constraint("DistanceY", 0, 3, -1, 1, 307.642832))
sketch9.addConstraint(Sketcher.Constraint("DistanceX", -1, 1, 0, 3, 239.632086))
sketch9.setExpression("Constraints[32]", "Params.sketch9_radius")
sketch9.setExpression("Constraints[33]", "Params.sketch9_radius2")
sketch9.setExpression("Constraints[34]", "Params.sketch9_width")
pad5 = body4.newObject("PartDesign::Pad", "Pad004")
pad5.Profile = sketch9
pad5.setExpression("Length", "Params.pad5_length")

sketch10 = body4.newObject("Sketcher::SketchObject", "Sketch009")
sketch10.AttachmentSupport = (doc.getObject("YZ_Plane003"), [""])
sketch10.MapMode = "FlatFace"
sketch10.AttachmentOffset = App.Placement(V(0, 0, 274.632086), App.Rotation())
sketch10.addGeometry(Part.LineSegment(V(-313, 40, 0), V(-313, 0, 0)), False)
sketch10.addGeometry(Part.LineSegment(V(-313, 0, 0), V(-273, 0, 0)), False)
sketch10.addGeometry(Part.LineSegment(V(-273, 0, 0), V(-313, 40, 0)), False)
sketch10.addConstraint(Sketcher.Constraint("Coincident", 0, 2, 1, 1))
sketch10.addConstraint(Sketcher.Constraint("Coincident", 1, 2, 2, 1))
sketch10.addConstraint(Sketcher.Constraint("Coincident", 2, 2, 0, 1))
sketch10.addConstraint(Sketcher.Constraint("Vertical", 0))
sketch10.addConstraint(Sketcher.Constraint("Horizontal", 1))
sketch10.addConstraint(Sketcher.Constraint("PointOnObject", 0, 2, -1))
sketch10.addConstraint(Sketcher.Constraint("Equal", 1, 0))
sketch10.addConstraint(Sketcher.Constraint("DistanceX", 1, 1, 1, 2, 40.0))
sketch10.addConstraint(Sketcher.Constraint("DistanceX", 0, 2, -1, 1, 312.642832))
sketch10.setExpression("Constraints[7]", "Params.sketch10_width")
pocket5 = body4.newObject("PartDesign::Pocket", "Pocket004")
pocket5.Profile = sketch10
pocket5.Type = "ThroughAll"

sketch11 = body4.newObject("Sketcher::SketchObject", "Sketch010")
sketch11.AttachmentSupport = (doc.getObject("XZ_Plane003"), [""])
sketch11.MapMode = "FlatFace"
sketch11.AttachmentOffset = App.Placement(V(0, 0, 312.642832), App.Rotation())
sketch11.addGeometry(Part.LineSegment(V(275, 400, 0), V(235, 400, 0)), False)
sketch11.addGeometry(Part.LineSegment(V(235, 400, 0), V(275, 360, 0)), False)
sketch11.addGeometry(Part.LineSegment(V(275, 360, 0), V(275, 400, 0)), False)
sketch11.addConstraint(Sketcher.Constraint("Coincident", 0, 2, 1, 1))
sketch11.addConstraint(Sketcher.Constraint("Coincident", 1, 2, 2, 1))
sketch11.addConstraint(Sketcher.Constraint("Coincident", 2, 2, 0, 1))
sketch11.addConstraint(Sketcher.Constraint("Horizontal", 0))
sketch11.addConstraint(Sketcher.Constraint("Vertical", 2))
sketch11.addConstraint(Sketcher.Constraint("Equal", 0, 2))
sketch11.addConstraint(Sketcher.Constraint("DistanceX", 0, 2, 0, 1, 40.0))
sketch11.addConstraint(Sketcher.Constraint("DistanceY", -1, 1, 0, 2, 400.0))
sketch11.addConstraint(Sketcher.Constraint("DistanceX", -1, 1, 0, 2, 234.632086))
sketch11.setExpression("Constraints[6]", "Params.sketch11_width")
pocket6 = body4.newObject("PartDesign::Pocket", "Pocket005")
pocket6.Profile = sketch11
pocket6.Type = "ThroughAll"

doc.recompute()
